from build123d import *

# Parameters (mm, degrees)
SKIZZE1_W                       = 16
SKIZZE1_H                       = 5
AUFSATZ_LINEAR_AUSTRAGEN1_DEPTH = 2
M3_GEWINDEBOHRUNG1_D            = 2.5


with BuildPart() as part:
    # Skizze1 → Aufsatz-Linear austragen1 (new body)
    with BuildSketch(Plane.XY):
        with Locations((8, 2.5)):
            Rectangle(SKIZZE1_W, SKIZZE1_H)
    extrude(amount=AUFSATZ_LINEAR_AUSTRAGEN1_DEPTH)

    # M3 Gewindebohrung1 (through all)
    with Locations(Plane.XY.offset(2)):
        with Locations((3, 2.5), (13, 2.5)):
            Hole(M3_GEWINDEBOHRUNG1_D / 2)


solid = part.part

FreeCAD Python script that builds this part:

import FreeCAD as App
import Part
import Sketcher
from FreeCAD import Vector
Q = App.Units.Quantity


def add_polygon(sketch, points):
    """Adds a closed chain of lines whose ends are joined by coincident constraints."""
    first, n = sketch.GeometryCount, len(points)
    for a, b in zip(points, points[1:] + points[:1]):
        sketch.addGeometry(Part.LineSegment(App.Vector(*a, 0), App.Vector(*b, 0)), False)
    for i in range(n):
        sketch.addConstraint(Sketcher.Constraint("Coincident", first + i, 2, first + (i + 1) % n, 1))

doc = App.newDocument("Part")
body = doc.addObject("PartDesign::Body", "Body")

# Sketch on XY plane
sketch1 = body.newObject("Sketcher::SketchObject", "Sketch")
sketch1.AttachmentSupport = (doc.getObject("XY_Plane"), [""])
sketch1.MapMode = "FlatFace"
add_polygon(sketch1, [(0, 5), (0, 0), (16, 0), (16, 5)])  # lines 0-3
sketch1.addConstraint([
    Sketcher.Constraint("Vertical", 0),
    Sketcher.Constraint("Horizontal", 1),
    Sketcher.Constraint("Vertical", 2),
    Sketcher.Constraint("Horizontal", 3),
    Sketcher.Constraint("Coincident", 0, 2, -1, 1),
    Sketcher.Constraint("DistanceX", 1, 1, 1, 2, Q("16 mm")),
    Sketcher.Constraint("DistanceY", 0, 2, 0, 1, Q("5 mm")),
])
pad1 = body.newObject("PartDesign::Pad", "Pad")
pad1.Profile = sketch1
pad1.Length = 2

# Sketch on XY plane
sketch2 = body.newObject("Sketcher::SketchObject", "Sketch001")
sketch2.AttachmentSupport = (doc.getObject("XY_Plane"), [""])
sketch2.MapMode = "FlatFace"
sketch2.AttachmentOffset = App.Placement(Vector(0, 0, 2), App.Rotation())
sketch2.addGeometry([
    Part.Circle(Vector(3, 2.5, 0), Vector(0, 0, 1), 1.2),
    Part.Circle(Vector(13, 2.5, 0), Vector(0, 0, 1), 1.2),
], False)
sketch2.addConstraint([
    Sketcher.Constraint("Equal", 0, 1),
    Sketcher.Constraint("Horizontal", 0, 3, 1, 3),
    Sketcher.Constraint("Diameter", 0, Q("2.5 mm")),
    Sketcher.Constraint("DistanceX", -1, 1, 0, 3, Q("3 mm")),
    Sketcher.Constraint("DistanceX", -1, 1, 1, 3, Q("13 mm")),
    Sketcher.Constraint("DistanceY", -1, 1, 0, 3, Q("2.5 mm")),
])
doc.recompute()
hole = body.newObject("PartDesign::Hole", "Hole")
hole.Profile = sketch2
hole.ThreadType = "None"
hole.Diameter = 2.5
hole.DepthType = "ThroughAll"

doc.recompute()
